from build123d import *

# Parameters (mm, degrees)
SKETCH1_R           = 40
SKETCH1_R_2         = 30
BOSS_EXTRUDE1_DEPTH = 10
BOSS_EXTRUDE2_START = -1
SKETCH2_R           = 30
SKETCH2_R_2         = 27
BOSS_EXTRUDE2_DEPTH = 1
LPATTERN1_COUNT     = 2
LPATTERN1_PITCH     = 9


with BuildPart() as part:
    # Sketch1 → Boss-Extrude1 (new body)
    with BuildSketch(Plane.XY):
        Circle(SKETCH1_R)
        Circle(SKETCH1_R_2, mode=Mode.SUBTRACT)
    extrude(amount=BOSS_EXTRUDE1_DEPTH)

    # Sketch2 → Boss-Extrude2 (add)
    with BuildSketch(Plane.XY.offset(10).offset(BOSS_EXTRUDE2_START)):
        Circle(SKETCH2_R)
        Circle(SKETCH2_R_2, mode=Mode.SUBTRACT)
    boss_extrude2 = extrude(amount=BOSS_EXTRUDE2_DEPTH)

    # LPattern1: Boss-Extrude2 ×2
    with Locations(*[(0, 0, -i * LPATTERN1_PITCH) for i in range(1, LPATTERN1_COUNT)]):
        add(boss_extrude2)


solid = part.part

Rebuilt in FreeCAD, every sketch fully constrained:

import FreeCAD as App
import Part
import Sketcher

V = App.Vector
Q = App.Units.Quantity

doc = App.newDocument("Part")
body = doc.addObject("PartDesign::Body", "Body")

sketch1 = body.newObject("Sketcher::SketchObject", "Sketch")
sketch1.AttachmentSupport = (doc.getObject("XY_Plane"), [""])
sketch1.MapMode = "FlatFace"
sketch1.addGeometry(Part.Circle(V(0, 0, 0), V(0, 0, 1), 40), False)
sketch1.addGeometry(Part.Circle(V(0, 0, 0), V(0, 0, 1), 30), False)
sketch1.addConstraint(Sketcher.Constraint("Coincident", 0, 3, -1, 1))
sketch1.addConstraint(Sketcher.Constraint("Coincident", 1, 3, -1, 1))
sketch1.addConstraint(Sketcher.Constraint("Diameter", 0, Q("80 mm")))
sketch1.addConstraint(Sketcher.Constraint("Diameter", 1, Q("60 mm")))
pad1 = body.newObject("PartDesign::Pad", "Pad")
pad1.Profile = sketch1
pad1.Length = 10

sketch2 = body.newObject("Sketcher::SketchObject", "Sketch001")
sketch2.AttachmentSupport = (doc.getObject("XY_Plane"), [""])
sketch2.MapMode = "FlatFace"
sketch2.AttachmentOffset = App.Placement(V(0, 0, 9), App.Rotation())
sketch2.addGeometry(Part.Circle(V(0, 0, 0), V(0, 0, 1), 30), False)
sketch2.addGeometry(Part.Circle(V(0, 0, 0), V(0, 0, 1), 27), False)
sketch2.addConstraint(Sketcher.Constraint("Coincident", 0, 3, -1, 1))
sketch2.addConstraint(Sketcher.Constraint("Coincident", 1, 3, -1, 1))
sketch2.addConstraint(Sketcher.Constraint("Diameter", 0, Q("60 mm")))
sketch2.addConstraint(Sketcher.Constraint("Diameter", 1, Q("54 mm")))
pad2 = body.newObject("PartDesign::Pad", "Pad001")
pad2.Profile = sketch2
pad2.Length = 1
doc.recompute()

linearpattern = body.newObject("PartDesign::LinearPattern", "LinearPattern")
linearpattern.Originals = [pad2]
linearpattern.Direction = (doc.getObject("Z_Axis"), [""])
linearpattern.Mode = "offset"
linearpattern.Offset = 9
linearpattern.Occurrences = 2
linearpattern.Reversed = True
body.Tip = linearpattern

doc.recompute()
